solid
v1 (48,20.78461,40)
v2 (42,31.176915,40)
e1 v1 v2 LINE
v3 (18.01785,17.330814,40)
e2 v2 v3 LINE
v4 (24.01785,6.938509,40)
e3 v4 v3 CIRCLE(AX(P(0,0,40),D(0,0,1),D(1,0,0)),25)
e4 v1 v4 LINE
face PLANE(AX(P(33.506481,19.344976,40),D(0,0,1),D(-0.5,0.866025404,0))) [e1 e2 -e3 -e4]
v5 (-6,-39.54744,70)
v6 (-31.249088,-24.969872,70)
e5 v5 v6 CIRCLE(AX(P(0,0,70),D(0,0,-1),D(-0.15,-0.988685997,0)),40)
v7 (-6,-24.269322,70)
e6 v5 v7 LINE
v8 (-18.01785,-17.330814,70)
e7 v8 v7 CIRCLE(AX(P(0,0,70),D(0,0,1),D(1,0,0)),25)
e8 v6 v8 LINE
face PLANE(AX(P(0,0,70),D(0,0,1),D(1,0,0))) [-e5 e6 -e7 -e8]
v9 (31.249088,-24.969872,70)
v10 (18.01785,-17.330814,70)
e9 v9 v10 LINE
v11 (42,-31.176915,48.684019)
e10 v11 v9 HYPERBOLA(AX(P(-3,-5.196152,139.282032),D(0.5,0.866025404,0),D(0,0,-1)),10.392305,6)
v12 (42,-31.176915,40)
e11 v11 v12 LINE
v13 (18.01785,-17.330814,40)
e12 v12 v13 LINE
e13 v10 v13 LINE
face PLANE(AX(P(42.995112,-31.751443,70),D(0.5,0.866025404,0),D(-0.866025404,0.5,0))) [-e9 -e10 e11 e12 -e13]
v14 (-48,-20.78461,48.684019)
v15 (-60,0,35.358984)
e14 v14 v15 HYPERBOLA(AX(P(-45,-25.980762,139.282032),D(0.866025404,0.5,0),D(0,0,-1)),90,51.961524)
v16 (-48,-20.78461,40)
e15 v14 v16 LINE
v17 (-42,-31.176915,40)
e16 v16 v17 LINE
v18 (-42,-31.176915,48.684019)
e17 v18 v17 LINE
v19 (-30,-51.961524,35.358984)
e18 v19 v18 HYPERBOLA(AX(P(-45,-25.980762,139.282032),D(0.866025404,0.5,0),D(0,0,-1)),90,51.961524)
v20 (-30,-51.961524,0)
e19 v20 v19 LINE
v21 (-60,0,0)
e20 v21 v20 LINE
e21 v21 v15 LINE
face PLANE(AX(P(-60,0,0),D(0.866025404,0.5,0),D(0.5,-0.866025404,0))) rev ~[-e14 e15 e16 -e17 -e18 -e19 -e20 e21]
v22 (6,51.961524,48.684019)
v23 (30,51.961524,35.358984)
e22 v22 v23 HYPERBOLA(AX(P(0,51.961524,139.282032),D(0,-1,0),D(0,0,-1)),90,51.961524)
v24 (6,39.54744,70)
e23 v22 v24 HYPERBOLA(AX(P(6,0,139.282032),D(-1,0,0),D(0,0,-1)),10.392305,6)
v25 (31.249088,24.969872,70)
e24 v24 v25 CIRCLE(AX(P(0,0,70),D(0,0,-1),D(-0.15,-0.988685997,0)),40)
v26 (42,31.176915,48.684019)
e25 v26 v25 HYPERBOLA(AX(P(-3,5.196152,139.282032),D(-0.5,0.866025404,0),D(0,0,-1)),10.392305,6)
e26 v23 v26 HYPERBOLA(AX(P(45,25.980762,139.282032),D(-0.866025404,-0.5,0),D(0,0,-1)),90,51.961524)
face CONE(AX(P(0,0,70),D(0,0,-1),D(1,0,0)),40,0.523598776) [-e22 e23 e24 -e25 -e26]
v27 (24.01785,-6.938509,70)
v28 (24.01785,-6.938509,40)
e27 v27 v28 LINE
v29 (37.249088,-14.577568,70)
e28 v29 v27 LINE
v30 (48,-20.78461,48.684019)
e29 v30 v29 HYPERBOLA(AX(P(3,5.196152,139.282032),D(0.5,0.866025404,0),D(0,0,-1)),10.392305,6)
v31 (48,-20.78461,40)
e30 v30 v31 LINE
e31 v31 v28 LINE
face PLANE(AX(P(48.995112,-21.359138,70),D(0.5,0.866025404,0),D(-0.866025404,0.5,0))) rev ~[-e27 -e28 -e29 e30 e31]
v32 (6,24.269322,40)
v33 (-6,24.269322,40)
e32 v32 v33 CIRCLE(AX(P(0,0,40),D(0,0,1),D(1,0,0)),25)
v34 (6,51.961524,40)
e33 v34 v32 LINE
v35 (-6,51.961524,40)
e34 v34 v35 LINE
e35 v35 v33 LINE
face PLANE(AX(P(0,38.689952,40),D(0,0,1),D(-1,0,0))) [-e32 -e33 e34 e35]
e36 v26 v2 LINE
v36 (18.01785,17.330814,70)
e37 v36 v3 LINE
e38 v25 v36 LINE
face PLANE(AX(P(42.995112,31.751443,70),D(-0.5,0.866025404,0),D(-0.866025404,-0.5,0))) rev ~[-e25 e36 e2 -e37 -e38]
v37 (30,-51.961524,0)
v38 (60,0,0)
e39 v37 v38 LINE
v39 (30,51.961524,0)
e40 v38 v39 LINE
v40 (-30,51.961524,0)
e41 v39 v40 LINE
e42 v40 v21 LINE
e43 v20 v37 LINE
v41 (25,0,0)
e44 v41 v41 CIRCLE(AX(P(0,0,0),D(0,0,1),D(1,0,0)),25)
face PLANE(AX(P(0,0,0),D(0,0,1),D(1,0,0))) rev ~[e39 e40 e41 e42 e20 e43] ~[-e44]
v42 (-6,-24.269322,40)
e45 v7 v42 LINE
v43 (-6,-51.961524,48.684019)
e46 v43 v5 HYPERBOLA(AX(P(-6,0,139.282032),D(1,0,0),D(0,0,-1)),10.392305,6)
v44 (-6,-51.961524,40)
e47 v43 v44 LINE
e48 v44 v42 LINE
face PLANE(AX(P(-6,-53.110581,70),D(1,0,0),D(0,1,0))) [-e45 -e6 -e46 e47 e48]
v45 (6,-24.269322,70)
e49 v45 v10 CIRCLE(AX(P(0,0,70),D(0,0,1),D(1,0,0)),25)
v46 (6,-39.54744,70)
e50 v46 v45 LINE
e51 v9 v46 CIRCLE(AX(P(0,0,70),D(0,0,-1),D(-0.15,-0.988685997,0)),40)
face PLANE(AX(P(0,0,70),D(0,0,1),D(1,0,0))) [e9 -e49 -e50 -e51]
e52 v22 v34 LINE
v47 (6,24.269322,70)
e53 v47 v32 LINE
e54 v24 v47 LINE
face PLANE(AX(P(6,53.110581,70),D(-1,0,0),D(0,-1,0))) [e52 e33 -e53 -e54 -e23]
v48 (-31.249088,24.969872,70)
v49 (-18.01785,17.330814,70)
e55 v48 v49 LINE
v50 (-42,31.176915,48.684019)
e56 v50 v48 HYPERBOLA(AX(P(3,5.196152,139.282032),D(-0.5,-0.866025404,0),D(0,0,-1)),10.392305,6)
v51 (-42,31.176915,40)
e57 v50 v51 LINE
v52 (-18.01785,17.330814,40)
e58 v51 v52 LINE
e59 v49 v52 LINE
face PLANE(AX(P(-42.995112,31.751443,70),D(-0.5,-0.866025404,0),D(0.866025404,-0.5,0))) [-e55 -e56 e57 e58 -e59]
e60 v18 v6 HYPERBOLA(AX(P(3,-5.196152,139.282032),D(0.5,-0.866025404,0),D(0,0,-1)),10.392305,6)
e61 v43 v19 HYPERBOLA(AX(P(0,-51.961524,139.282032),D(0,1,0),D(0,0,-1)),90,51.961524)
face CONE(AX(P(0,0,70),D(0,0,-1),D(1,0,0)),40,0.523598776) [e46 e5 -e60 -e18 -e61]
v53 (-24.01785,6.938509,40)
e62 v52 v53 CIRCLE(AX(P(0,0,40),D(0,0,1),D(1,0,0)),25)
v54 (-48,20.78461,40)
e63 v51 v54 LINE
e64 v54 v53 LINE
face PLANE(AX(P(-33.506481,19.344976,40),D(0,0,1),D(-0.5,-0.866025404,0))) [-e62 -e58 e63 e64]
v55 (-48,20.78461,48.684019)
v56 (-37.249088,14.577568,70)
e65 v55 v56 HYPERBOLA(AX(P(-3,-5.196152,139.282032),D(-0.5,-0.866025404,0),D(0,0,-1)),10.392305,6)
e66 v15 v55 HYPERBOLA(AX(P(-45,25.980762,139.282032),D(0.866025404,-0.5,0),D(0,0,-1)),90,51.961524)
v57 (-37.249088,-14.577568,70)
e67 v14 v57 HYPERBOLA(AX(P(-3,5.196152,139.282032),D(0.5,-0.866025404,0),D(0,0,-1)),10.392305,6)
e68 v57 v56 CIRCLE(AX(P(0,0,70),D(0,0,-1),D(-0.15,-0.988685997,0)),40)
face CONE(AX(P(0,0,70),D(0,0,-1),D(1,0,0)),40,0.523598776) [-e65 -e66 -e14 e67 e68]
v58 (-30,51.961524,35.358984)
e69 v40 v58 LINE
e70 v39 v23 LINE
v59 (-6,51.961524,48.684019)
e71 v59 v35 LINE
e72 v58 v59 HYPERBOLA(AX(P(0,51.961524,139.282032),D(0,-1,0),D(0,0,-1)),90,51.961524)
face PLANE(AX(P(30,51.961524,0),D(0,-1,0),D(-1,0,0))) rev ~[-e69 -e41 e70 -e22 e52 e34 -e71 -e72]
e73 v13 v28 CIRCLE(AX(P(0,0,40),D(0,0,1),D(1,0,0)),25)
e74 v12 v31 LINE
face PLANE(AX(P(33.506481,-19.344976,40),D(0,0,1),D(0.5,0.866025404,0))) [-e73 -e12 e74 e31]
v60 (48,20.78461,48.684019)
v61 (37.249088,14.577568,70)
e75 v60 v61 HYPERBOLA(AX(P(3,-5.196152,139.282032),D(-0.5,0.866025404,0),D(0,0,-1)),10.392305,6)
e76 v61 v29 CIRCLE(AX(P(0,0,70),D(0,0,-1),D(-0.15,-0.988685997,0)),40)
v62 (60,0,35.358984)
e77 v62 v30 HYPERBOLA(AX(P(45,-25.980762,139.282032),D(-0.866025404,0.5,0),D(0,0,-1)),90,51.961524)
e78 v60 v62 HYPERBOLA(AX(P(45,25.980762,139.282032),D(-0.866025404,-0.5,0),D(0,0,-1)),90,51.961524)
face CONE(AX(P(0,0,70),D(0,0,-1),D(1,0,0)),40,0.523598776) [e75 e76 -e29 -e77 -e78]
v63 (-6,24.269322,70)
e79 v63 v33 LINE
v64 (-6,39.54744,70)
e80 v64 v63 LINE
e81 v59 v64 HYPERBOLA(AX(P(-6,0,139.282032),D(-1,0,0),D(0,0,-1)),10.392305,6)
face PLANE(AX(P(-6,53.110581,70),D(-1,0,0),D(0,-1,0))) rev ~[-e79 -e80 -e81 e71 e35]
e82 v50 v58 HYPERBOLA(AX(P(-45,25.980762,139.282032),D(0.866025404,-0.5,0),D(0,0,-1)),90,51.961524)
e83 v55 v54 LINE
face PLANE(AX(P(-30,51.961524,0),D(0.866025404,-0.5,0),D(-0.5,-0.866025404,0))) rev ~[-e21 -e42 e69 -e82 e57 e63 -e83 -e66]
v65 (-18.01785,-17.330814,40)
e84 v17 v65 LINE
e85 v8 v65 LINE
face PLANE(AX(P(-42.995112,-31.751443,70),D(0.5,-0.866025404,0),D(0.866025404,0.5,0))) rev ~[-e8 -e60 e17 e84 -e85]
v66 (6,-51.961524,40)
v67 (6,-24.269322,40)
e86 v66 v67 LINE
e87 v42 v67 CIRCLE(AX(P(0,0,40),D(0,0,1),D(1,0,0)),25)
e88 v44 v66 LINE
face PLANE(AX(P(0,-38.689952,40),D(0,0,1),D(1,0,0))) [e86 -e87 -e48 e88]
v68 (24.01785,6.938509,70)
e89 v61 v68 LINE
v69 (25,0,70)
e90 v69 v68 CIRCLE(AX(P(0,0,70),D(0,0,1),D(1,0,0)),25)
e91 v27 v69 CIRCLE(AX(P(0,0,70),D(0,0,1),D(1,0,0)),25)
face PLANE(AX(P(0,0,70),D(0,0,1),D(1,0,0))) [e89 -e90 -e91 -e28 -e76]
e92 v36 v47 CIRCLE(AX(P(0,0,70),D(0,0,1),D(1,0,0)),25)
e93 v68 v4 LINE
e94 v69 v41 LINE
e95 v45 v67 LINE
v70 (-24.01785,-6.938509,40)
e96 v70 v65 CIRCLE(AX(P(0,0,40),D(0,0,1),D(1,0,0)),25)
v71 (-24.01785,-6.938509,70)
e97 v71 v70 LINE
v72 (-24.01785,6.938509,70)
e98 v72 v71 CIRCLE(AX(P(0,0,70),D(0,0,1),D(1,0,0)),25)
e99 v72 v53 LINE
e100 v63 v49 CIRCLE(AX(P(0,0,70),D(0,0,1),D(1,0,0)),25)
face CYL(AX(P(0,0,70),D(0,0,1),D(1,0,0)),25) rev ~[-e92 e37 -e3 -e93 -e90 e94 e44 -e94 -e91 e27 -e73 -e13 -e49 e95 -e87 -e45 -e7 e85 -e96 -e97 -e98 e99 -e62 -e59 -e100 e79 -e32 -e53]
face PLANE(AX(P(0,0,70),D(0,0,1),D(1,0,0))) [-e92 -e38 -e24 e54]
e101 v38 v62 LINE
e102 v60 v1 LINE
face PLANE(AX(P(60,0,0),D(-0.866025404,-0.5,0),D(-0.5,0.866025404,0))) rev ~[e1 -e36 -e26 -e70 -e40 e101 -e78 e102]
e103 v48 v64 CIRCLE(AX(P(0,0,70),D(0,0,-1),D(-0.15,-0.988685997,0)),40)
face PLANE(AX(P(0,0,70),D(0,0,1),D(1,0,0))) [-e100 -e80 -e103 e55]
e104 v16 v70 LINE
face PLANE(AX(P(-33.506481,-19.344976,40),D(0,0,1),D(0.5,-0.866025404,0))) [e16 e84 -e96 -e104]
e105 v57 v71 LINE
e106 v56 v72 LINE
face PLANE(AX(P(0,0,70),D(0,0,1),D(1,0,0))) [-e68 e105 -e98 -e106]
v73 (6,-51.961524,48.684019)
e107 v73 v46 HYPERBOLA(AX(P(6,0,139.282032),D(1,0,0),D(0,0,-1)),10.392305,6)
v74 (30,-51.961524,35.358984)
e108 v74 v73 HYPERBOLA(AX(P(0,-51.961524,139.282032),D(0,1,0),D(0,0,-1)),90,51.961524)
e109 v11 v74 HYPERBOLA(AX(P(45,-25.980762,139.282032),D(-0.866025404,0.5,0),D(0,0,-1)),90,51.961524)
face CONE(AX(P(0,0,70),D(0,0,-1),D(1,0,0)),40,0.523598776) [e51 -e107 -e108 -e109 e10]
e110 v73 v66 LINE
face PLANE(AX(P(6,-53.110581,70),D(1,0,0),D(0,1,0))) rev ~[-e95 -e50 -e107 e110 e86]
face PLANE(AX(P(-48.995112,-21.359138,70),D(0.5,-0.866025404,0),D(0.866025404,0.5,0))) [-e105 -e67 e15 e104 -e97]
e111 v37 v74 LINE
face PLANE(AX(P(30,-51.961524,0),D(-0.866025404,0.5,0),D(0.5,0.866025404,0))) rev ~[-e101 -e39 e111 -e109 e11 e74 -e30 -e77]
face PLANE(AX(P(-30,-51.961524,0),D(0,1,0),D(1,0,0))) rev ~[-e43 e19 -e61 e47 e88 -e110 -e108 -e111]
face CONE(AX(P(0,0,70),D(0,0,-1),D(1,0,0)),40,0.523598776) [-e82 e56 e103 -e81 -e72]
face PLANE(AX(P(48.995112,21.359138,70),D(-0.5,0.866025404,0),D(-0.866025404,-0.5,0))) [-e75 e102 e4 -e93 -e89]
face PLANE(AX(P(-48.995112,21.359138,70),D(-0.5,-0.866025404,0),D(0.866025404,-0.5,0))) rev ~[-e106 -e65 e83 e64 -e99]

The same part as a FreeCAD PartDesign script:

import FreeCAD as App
import Part
import Sketcher
from FreeCAD import Vector
Q = App.Units.Quantity


def faces_at(feature, points):
    """Names of the faces that lie closest to the given points."""
    faces = feature.Shape.Faces
    near = lambda p: min(range(len(faces)), key=lambda i: faces[i].distToShape(Part.Vertex(*p))[0])
    return sorted({f"Face{near(p) + 1}" for p in points})


def add_polygon(sketch, points):
    """Adds a closed chain of lines whose ends are joined by coincident constraints."""
    first, n = sketch.GeometryCount, len(points)
    for a, b in zip(points, points[1:] + points[:1]):
        sketch.addGeometry(Part.LineSegment(App.Vector(*a, 0), App.Vector(*b, 0)), False)
    for i in range(n):
        sketch.addConstraint(Sketcher.Constraint("Coincident", first + i, 2, first + (i + 1) % n, 1))

doc = App.newDocument("Part")
body = doc.addObject("PartDesign::Body", "Body")

# Sketch on XY plane
sketch1 = doc.addObject("Sketcher::SketchObject", "Sketch")
body.addObject(sketch1)
sketch1.AttachmentSupport = (doc.XY_Plane, [""])
sketch1.MapMode = "FlatFace"
add_polygon(sketch1, [(60, 0), (30, 51.961524), (-30, 51.961524), (-60, 0), (-30, -51.961524), (30, -51.961524)])  # lines 0-5
sketch1.addConstraint(Sketcher.Constraint("Horizontal", 1))
sketch1.addConstraint(Sketcher.Constraint("Horizontal", 4))
sketch1.addConstraint(Sketcher.Constraint("Symmetric", 0, 2, 3, 2, -1, 1))
sketch1.addConstraint(Sketcher.Constraint("Symmetric", 2, 2, 5, 2, -1, 1))
sketch1.addConstraint(Sketcher.Constraint("PointOnObject", 2, 2, -1))
sketch1.addConstraint(Sketcher.Constraint("Parallel", 2, 5))
sketch1.addConstraint(Sketcher.Constraint("Vertical", 1, 2, 3, 2))
sketch1.addConstraint(Sketcher.Constraint("DistanceX", 1, 2, 1, 1, 60.0))
sketch1.addConstraint(Sketcher.Constraint("Angle", 0, Q("120 deg")))
sketch1.addConstraint(Sketcher.Constraint("Distance", 0, 60.0))
pad1 = doc.addObject("PartDesign::Pad", "Pad")
body.addObject(pad1)
pad1.Profile = sketch1
pad1.Length = 70

# Sketch on XY plane
sketch2 = doc.addObject("Sketcher::SketchObject", "Sketch001")
body.addObject(sketch2)
sketch2.AttachmentSupport = (doc.XY_Plane, [""])
sketch2.MapMode = "FlatFace"
sketch2.AttachmentOffset = App.Placement(Vector(0, 0, 70), App.Rotation())
sketch2.addGeometry(Part.Circle(Vector(0, 0, 0), Vector(0, 0, 1), 25), False)
sketch2.addConstraint(Sketcher.Constraint("Coincident", 0, 3, -1, 1))
sketch2.addConstraint(Sketcher.Constraint("Diameter", 0, 50.0))
pocket1 = doc.addObject("PartDesign::Pocket", "Pocket")
body.addObject(pocket1)
pocket1.Profile = sketch2
pocket1.Type = "ThroughAll"
body2 = doc.addObject("PartDesign::Body", "Body001")

# Sketch on XY plane
sketch3 = doc.addObject("Sketcher::SketchObject", "Sketch002")
body2.addObject(sketch3)
sketch3.AttachmentSupport = (doc.getObject("XY_Plane001"), [""])
sketch3.MapMode = "FlatFace"
sketch3.AttachmentOffset = App.Placement(Vector(0, 0, 70), App.Rotation())
add_polygon(sketch3, [(-118.764, 110.726), (-118.764, -110.726), (118.764, -110.726), (118.764, 110.726)])  # lines 0-3
sketch3.addGeometry(Part.Circle(Vector(0, 0, 0), Vector(0, 0, 1), 40), False)  # 4
sketch3.addConstraint(Sketcher.Constraint("Vertical", 0))
sketch3.addConstraint(Sketcher.Constraint("Horizontal", 1))
sketch3.addConstraint(Sketcher.Constraint("Vertical", 2))
sketch3.addConstraint(Sketcher.Constraint("Horizontal", 3))
sketch3.addConstraint(Sketcher.Constraint("Coincident", 4, 3, -1, 1))
sketch3.addConstraint(Sketcher.Constraint("Symmetric", 0, 2, 2, 2, -1, 1))
sketch3.addConstraint(Sketcher.Constraint("Diameter", 4, 80.0))
sketch3.addConstraint(Sketcher.Constraint("DistanceX", 1, 1, 1, 2, 237.528))
sketch3.addConstraint(Sketcher.Constraint("DistanceY", 0, 2, 0, 1, 221.452))
pad2 = doc.addObject("PartDesign::Pad", "Pad001")
body2.addObject(pad2)
pad2.Profile = sketch3
pad2.Length = 70
pad2.Reversed = True
doc.recompute()

datumplane = doc.addObject("PartDesign::Plane", "DatumPlane")
body2.addObject(datumplane)
datumplane.AttachmentSupport = (doc.getObject("XY_Plane001"), [""])
datumplane.MapMode = "FlatFace"
datumplane.AttachmentOffset = App.Placement(Vector(0, 0, 70), App.Rotation())
draft = doc.addObject("PartDesign::Draft", "Draft")
body2.addObject(draft)
draft.Base = (pad2, faces_at(pad2, [
    (0, -110.726, 35),
    (118.764, 0, 35),
    (0, 110.726, 35),
    (-118.764, 0, 35),
    (-40, 0, 35),
]))
draft.NeutralPlane = (datumplane, [""])
draft.Angle = 30
draft.Reversed = True
doc.recompute()

boolean = doc.addObject("PartDesign::Boolean", "Boolean")
body.addObject(boolean)
boolean.Type = "Cut"
boolean.addObjects([body2])

# Sketch on XY plane
sketch4 = doc.addObject("Sketcher::SketchObject", "Sketch003")
body.addObject(sketch4)
sketch4.AttachmentSupport = (doc.XY_Plane, [""])
sketch4.MapMode = "FlatFace"
sketch4.AttachmentOffset = App.Placement(Vector(0, 0, 70), App.Rotation())
add_polygon(sketch4, [(-6, -24.269322), (-6, -53.110581), (6, -53.110581), (6, -24.269322)])  # lines 0-3
sketch4.addConstraint(Sketcher.Constraint("Vertical", 0))
sketch4.addConstraint(Sketcher.Constraint("Horizontal", 1))
sketch4.addConstraint(Sketcher.Constraint("Vertical", 2))
sketch4.addConstraint(Sketcher.Constraint("Horizontal", 3))
sketch4.addConstraint(Sketcher.Constraint("DistanceX", 1, 1, 1, 2, 12.0))
sketch4.addConstraint(Sketcher.Constraint("DistanceX", 0, 2, -1, 1, 6.0))
sketch4.addConstraint(Sketcher.Constraint("DistanceY", 0, 2, 0, 1, 28.841259))
sketch4.addConstraint(Sketcher.Constraint("DistanceY", 0, 2, -1, 1, 53.110581))
pocket2 = doc.addObject("PartDesign::Pocket", "Pocket001")
body.addObject(pocket2)
pocket2.Profile = sketch4
pocket2.Length = 30
doc.recompute()

polarpattern = doc.addObject("PartDesign::PolarPattern", "PolarPattern")
body.addObject(polarpattern)
polarpattern.Originals = [pocket2]
polarpattern.Axis = (doc.Z_Axis, [""])
polarpattern.Angle = 360
polarpattern.Occurrences = 6
body.Tip = polarpattern

doc.recompute()
